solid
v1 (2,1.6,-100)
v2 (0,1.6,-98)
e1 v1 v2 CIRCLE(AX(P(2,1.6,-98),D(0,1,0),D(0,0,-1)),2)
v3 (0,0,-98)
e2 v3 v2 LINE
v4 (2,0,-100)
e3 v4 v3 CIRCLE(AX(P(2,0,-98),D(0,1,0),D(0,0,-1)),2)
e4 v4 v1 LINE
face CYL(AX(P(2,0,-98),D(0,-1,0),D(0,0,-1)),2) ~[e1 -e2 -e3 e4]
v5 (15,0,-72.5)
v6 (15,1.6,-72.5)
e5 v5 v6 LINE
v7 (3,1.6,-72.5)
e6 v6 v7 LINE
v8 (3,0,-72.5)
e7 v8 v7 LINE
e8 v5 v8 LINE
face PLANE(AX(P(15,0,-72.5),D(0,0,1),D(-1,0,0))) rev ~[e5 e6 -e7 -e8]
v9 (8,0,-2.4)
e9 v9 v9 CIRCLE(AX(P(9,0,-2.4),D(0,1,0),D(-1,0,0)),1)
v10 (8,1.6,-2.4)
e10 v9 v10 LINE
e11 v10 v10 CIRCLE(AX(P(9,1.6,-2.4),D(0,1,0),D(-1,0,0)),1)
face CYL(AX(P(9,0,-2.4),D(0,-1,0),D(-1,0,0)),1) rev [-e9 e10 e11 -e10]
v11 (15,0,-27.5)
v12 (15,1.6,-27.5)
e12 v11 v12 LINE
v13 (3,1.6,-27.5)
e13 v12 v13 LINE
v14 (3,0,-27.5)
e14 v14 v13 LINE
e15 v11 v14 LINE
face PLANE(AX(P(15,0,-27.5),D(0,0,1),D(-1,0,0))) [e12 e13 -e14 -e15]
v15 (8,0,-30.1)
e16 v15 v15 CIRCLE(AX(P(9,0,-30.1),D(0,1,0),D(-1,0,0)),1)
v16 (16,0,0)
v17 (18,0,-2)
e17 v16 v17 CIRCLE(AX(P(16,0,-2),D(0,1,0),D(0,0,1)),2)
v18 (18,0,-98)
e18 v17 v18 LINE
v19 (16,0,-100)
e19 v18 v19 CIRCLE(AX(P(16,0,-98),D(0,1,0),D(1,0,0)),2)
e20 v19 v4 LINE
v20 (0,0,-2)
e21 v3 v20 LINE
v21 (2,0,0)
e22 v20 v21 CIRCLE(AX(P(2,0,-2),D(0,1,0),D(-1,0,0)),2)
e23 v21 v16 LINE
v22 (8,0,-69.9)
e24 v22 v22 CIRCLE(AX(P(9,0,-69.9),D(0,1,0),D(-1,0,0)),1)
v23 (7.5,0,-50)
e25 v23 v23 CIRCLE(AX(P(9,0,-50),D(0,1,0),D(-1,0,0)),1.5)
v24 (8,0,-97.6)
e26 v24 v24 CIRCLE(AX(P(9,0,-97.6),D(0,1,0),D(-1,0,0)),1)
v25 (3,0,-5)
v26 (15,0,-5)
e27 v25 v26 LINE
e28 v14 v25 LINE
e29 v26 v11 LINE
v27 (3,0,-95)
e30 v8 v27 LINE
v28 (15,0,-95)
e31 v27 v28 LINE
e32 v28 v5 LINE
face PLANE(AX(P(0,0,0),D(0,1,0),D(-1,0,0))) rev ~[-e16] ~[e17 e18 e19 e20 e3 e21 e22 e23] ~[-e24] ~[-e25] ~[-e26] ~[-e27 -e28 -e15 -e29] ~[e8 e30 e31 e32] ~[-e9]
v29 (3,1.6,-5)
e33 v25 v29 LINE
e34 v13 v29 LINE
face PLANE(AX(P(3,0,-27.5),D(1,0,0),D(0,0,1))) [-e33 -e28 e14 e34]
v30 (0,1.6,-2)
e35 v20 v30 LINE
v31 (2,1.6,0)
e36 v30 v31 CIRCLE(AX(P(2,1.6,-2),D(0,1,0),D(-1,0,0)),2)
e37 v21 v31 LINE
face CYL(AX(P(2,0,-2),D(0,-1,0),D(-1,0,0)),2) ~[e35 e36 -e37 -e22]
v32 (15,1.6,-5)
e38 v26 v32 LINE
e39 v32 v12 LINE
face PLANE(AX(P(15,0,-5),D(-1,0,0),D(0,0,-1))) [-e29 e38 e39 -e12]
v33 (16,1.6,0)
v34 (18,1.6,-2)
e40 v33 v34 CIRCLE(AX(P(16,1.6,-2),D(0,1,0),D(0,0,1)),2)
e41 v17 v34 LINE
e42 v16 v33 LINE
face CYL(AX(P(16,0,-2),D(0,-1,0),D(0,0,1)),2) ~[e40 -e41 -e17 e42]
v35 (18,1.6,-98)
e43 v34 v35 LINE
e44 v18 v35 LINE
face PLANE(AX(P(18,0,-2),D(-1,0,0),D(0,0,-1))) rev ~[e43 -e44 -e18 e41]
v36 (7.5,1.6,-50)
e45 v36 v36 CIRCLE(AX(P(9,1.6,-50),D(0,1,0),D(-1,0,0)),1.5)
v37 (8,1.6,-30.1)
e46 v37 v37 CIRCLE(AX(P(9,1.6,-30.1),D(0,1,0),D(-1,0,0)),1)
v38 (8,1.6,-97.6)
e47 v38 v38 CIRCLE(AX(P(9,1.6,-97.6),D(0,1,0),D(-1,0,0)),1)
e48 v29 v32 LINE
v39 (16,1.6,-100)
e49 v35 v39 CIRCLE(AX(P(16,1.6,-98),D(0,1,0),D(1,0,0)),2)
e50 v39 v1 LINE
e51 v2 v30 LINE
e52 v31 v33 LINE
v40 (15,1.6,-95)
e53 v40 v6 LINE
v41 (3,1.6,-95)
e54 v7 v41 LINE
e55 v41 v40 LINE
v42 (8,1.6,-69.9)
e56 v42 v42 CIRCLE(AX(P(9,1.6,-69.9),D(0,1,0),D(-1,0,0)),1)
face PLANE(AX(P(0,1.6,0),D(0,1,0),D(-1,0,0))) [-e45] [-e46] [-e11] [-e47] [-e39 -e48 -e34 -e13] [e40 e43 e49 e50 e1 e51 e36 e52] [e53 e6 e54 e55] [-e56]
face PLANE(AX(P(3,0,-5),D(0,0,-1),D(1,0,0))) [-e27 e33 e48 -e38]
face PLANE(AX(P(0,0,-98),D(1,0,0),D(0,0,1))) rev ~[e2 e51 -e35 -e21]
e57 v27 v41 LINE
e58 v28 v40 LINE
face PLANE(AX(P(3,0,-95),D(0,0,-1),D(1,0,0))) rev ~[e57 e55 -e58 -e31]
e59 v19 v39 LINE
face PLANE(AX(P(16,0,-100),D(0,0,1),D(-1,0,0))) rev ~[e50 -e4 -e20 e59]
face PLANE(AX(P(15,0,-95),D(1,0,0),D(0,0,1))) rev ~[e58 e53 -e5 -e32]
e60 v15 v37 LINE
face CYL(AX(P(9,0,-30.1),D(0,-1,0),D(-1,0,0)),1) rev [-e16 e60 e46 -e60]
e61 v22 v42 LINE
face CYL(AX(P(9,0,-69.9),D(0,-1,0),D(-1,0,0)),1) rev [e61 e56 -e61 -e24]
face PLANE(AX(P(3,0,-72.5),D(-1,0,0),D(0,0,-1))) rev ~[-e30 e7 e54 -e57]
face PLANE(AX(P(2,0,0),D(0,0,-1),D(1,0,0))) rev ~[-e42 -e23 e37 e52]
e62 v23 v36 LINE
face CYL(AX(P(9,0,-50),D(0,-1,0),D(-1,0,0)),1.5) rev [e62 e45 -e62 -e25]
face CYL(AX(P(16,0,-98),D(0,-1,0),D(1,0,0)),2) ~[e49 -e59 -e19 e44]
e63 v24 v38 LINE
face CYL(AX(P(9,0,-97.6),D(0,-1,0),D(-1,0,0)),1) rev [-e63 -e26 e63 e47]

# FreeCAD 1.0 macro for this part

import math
import FreeCAD as App
import Part
import Sketcher
from FreeCAD import Vector

doc = App.newDocument("Part")
body = doc.addObject("PartDesign::Body", "Body")

# Sketch on XZ plane
sketch1 = doc.addObject("Sketcher::SketchObject", "Sketch")
body.addObject(sketch1)
sketch1.AttachmentSupport = (doc.XZ_Plane, [""])
sketch1.MapMode = "FlatFace"
sketch1.addGeometry(Part.ArcOfCircle(Part.Circle(Vector(2, -2, 0), Vector(0, 0, 1), 2), math.radians(90), math.radians(180)), False)
sketch1.addGeometry(Part.LineSegment(Vector(2, 0, 0), Vector(16, 0, 0)), False)
sketch1.addGeometry(Part.ArcOfCircle(Part.Circle(Vector(16, -2, 0), Vector(0, 0, 1), 2), math.radians(0), math.radians(90)), False)
sketch1.addGeometry(Part.LineSegment(Vector(18, -2, 0), Vector(18, -98, 0)), False)
sketch1.addGeometry(Part.ArcOfCircle(Part.Circle(Vector(16, -98, 0), Vector(0, 0, 1), 2), math.radians(-90), math.radians(0)), False)
sketch1.addGeometry(Part.LineSegment(Vector(16, -100, 0), Vector(2, -100, 0)), False)
sketch1.addGeometry(Part.ArcOfCircle(Part.Circle(Vector(2, -98, 0), Vector(0, 0, 1), 2), math.radians(180), math.radians(270)), False)
sketch1.addGeometry(Part.LineSegment(Vector(0, -98, 0), Vector(0, -2, 0)), False)
sketch1.addGeometry(Part.Circle(Vector(9, -97.6, 0), Vector(0, 0, 1), 1), False)
sketch1.addGeometry(Part.LineSegment(Vector(3, -72.5, 0), Vector(3, -95, 0)), False)
sketch1.addGeometry(Part.LineSegment(Vector(3, -95, 0), Vector(15, -95, 0)), False)
sketch1.addGeometry(Part.LineSegment(Vector(15, -95, 0), Vector(15, -72.5, 0)), False)
sketch1.addGeometry(Part.LineSegment(Vector(15, -72.5, 0), Vector(3, -72.5, 0)), False)
sketch1.addGeometry(Part.Circle(Vector(9, -69.9, 0), Vector(0, 0, 1), 1), False)
sketch1.addGeometry(Part.Circle(Vector(9, -50, 0), Vector(0, 0, 1), 1.5), False)
sketch1.addGeometry(Part.Circle(Vector(9, -30.1, 0), Vector(0, 0, 1), 1), False)
sketch1.addGeometry(Part.LineSegment(Vector(15, -5, 0), Vector(3, -5, 0)), False)
sketch1.addGeometry(Part.LineSegment(Vector(3, -5, 0), Vector(3, -27.5, 0)), False)
sketch1.addGeometry(Part.LineSegment(Vector(3, -27.5, 0), Vector(15, -27.5, 0)), False)
sketch1.addGeometry(Part.LineSegment(Vector(15, -27.5, 0), Vector(15, -5, 0)), False)
sketch1.addGeometry(Part.Circle(Vector(9, -2.4, 0), Vector(0, 0, 1), 1), False)
sketch1.addConstraint(Sketcher.Constraint("Tangent", 0, 1, 1, 1))
sketch1.addConstraint(Sketcher.Constraint("Tangent", 1, 2, 2, 2))
sketch1.addConstraint(Sketcher.Constraint("Tangent", 2, 1, 3, 1))
sketch1.addConstraint(Sketcher.Constraint("Tangent", 3, 2, 4, 2))
sketch1.addConstraint(Sketcher.Constraint("Tangent", 4, 1, 5, 1))
sketch1.addConstraint(Sketcher.Constraint("Tangent", 5, 2, 6, 2))
sketch1.addConstraint(Sketcher.Constraint("Tangent", 6, 1, 7, 1))
sketch1.addConstraint(Sketcher.Constraint("Tangent", 7, 2, 0, 2))
sketch1.addConstraint(Sketcher.Constraint("Coincident", 9, 2, 10, 1))
sketch1.addConstraint(Sketcher.Constraint("Coincident", 10, 2, 11, 1))
sketch1.addConstraint(Sketcher.Constraint("Coincident", 11, 2, 12, 1))
sketch1.addConstraint(Sketcher.Constraint("Coincident", 12, 2, 9, 1))
sketch1.addConstraint(Sketcher.Constraint("Coincident", 16, 2, 17, 1))
sketch1.addConstraint(Sketcher.Constraint("Coincident", 17, 2, 18, 1))
sketch1.addConstraint(Sketcher.Constraint("Coincident", 18, 2, 19, 1))
sketch1.addConstraint(Sketcher.Constraint("Coincident", 19, 2, 16, 1))
sketch1.addConstraint(Sketcher.Constraint("Horizontal", 1))
sketch1.addConstraint(Sketcher.Constraint("Vertical", 3))
sketch1.addConstraint(Sketcher.Constraint("Horizontal", 5))
sketch1.addConstraint(Sketcher.Constraint("Vertical", 7))
sketch1.addConstraint(Sketcher.Constraint("Vertical", 9))
sketch1.addConstraint(Sketcher.Constraint("Horizontal", 10))
sketch1.addConstraint(Sketcher.Constraint("Vertical", 11))
sketch1.addConstraint(Sketcher.Constraint("Horizontal", 12))
sketch1.addConstraint(Sketcher.Constraint("Horizontal", 16))
sketch1.addConstraint(Sketcher.Constraint("Vertical", 17))
sketch1.addConstraint(Sketcher.Constraint("Horizontal", 18))
sketch1.addConstraint(Sketcher.Constraint("Vertical", 19))
sketch1.addConstraint(Sketcher.Constraint("Equal", 0, 2))
sketch1.addConstraint(Sketcher.Constraint("Equal", 2, 4))
sketch1.addConstraint(Sketcher.Constraint("Equal", 4, 6))
sketch1.addConstraint(Sketcher.Constraint("Equal", 8, 13))
sketch1.addConstraint(Sketcher.Constraint("Equal", 13, 15))
sketch1.addConstraint(Sketcher.Constraint("Equal", 15, 20))
sketch1.addConstraint(Sketcher.Constraint("PointOnObject", 0, 1, -1))
sketch1.addConstraint(Sketcher.Constraint("PointOnObject", 6, 1, -2))
sketch1.addConstraint(Sketcher.Constraint("Vertical", 8, 3, 13, 3))
sketch1.addConstraint(Sketcher.Constraint("Vertical", 13, 3, 14, 3))
sketch1.addConstraint(Sketcher.Constraint("Vertical", 14, 3, 15, 3))
sketch1.addConstraint(Sketcher.Constraint("Vertical", 15, 3, 20, 3))
sketch1.addConstraint(Sketcher.Constraint("Vertical", 12, 2, 16, 2))
sketch1.addConstraint(Sketcher.Constraint("Vertical", 11, 2, 18, 2))
sketch1.addConstraint(Sketcher.Constraint("Equal", 11, 17))
sketch1.addConstraint(Sketcher.Constraint("Diameter", 8, 2.0))
sketch1.addConstraint(Sketcher.Constraint("Diameter", 14, 3.0))
sketch1.addConstraint(Sketcher.Constraint("Radius", 0, 2.0))
sketch1.addConstraint(Sketcher.Constraint("DistanceX", 10, 1, 10, 2, 12.0))
sketch1.addConstraint(Sketcher.Constraint("DistanceY", 9, 2, 9, 1, 22.5))
sketch1.addConstraint(Sketcher.Constraint("DistanceX", -1, 1, 2, 1, 18.0))
sketch1.addConstraint(Sketcher.Constraint("DistanceY", 4, 1, -1, 1, 100.0))
sketch1.addConstraint(Sketcher.Constraint("DistanceX", -1, 1, 9, 2, 3.0))
sketch1.addConstraint(Sketcher.Constraint("DistanceY", 16, 2, -1, 1, 5.0))
sketch1.addConstraint(Sketcher.Constraint("DistanceY", 6, 3, 9, 2, 3.0))
sketch1.addConstraint(Sketcher.Constraint("DistanceX", 9, 2, 8, 3, 6.0))
sketch1.addConstraint(Sketcher.Constraint("DistanceY", 8, 3, 9, 2, 2.6))
sketch1.addConstraint(Sketcher.Constraint("DistanceY", 11, 2, 13, 3, 2.6))
sketch1.addConstraint(Sketcher.Constraint("DistanceY", 11, 2, 14, 3, 22.5))
sketch1.addConstraint(Sketcher.Constraint("DistanceY", 16, 2, 20, 3, 2.6))
sketch1.addConstraint(Sketcher.Constraint("DistanceY", 15, 3, 17, 2, 2.6))
pad1 = doc.addObject("PartDesign::Pad", "Pad")
body.addObject(pad1)
pad1.Profile = sketch1
pad1.Length = 1.6
pad1.Reversed = True

doc.recompute()
